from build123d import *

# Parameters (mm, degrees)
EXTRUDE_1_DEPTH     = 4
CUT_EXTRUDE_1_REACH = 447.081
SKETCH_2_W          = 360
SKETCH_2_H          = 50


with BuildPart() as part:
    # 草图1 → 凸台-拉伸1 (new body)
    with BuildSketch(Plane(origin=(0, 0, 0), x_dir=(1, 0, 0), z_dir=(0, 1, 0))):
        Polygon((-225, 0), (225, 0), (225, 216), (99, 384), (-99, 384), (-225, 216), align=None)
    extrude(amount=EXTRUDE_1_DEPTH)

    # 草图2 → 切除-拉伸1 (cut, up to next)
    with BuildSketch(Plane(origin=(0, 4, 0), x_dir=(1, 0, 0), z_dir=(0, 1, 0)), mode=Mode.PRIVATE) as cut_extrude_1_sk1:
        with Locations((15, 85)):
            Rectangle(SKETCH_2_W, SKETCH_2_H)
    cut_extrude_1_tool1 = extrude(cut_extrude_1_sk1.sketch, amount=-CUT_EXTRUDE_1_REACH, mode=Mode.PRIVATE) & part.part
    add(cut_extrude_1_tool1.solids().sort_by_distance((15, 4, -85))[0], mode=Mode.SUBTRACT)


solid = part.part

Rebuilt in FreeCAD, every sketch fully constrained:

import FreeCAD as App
import Part
import Sketcher

V = App.Vector

doc = App.newDocument("Part")
body = doc.addObject("PartDesign::Body", "Body")

# Sketch on XZ plane
sketch1 = body.newObject("Sketcher::SketchObject", "Sketch")
sketch1.AttachmentSupport = (doc.getObject("XZ_Plane"), [""])
sketch1.MapMode = "FlatFace"
sketch1.addGeometry(Part.LineSegment(V(-225, 0, 0), V(225, 0, 0)), False)
sketch1.addGeometry(Part.LineSegment(V(225, 0, 0), V(225, -216, 0)), False)
sketch1.addGeometry(Part.LineSegment(V(225, -216, 0), V(99, -384, 0)), False)
sketch1.addGeometry(Part.LineSegment(V(99, -384, 0), V(-99, -384, 0)), False)
sketch1.addGeometry(Part.LineSegment(V(-99, -384, 0), V(-225, -216, 0)), False)
sketch1.addGeometry(Part.LineSegment(V(-225, -216, 0), V(-225, 0, 0)), False)
sketch1.addConstraint(Sketcher.Constraint("Coincident", 0, 2, 1, 1))
sketch1.addConstraint(Sketcher.Constraint("Coincident", 1, 2, 2, 1))
sketch1.addConstraint(Sketcher.Constraint("Coincident", 2, 2, 3, 1))
sketch1.addConstraint(Sketcher.Constraint("Coincident", 3, 2, 4, 1))
sketch1.addConstraint(Sketcher.Constraint("Coincident", 4, 2, 5, 1))
sketch1.addConstraint(Sketcher.Constraint("Coincident", 5, 2, 0, 1))
sketch1.addConstraint(Sketcher.Constraint("Horizontal", 0))
sketch1.addConstraint(Sketcher.Constraint("Vertical", 1))
sketch1.addConstraint(Sketcher.Constraint("Horizontal", 3))
sketch1.addConstraint(Sketcher.Constraint("Vertical", 5))
sketch1.addConstraint(Sketcher.Constraint("Symmetric", 0, 2, 5, 2, -1, 1))
sketch1.addConstraint(Sketcher.Constraint("Horizontal", 1, 2, 4, 2))
sketch1.addConstraint(Sketcher.Constraint("Equal", 2, 4))
sketch1.addConstraint(Sketcher.Constraint("DistanceX", 0, 1, 0, 2, 450.0))
sketch1.addConstraint(Sketcher.Constraint("DistanceX", 3, 2, 3, 1, 198.0))
sketch1.addConstraint(Sketcher.Constraint("DistanceY", 1, 2, 1, 1, 216.0))
sketch1.addConstraint(Sketcher.Constraint("Distance", 2, 210.0))
pad1 = body.newObject("PartDesign::Pad", "Pad")
pad1.Profile = sketch1
pad1.Length = 4
pad1.Reversed = True

# Sketch on XZ plane
sketch2 = body.newObject("Sketcher::SketchObject", "Sketch001")
sketch2.AttachmentSupport = (doc.getObject("XZ_Plane"), [""])
sketch2.MapMode = "FlatFace"
sketch2.AttachmentOffset = App.Placement(V(0, 0, -4), App.Rotation())
sketch2.addGeometry(Part.LineSegment(V(-165, -110, 0), V(-165, -60, 0)), False)
sketch2.addGeometry(Part.LineSegment(V(-165, -60, 0), V(195, -60, 0)), False)
sketch2.addGeometry(Part.LineSegment(V(195, -60, 0), V(195, -110, 0)), False)
sketch2.addGeometry(Part.LineSegment(V(195, -110, 0), V(-165, -110, 0)), False)
sketch2.addConstraint(Sketcher.Constraint("Coincident", 0, 2, 1, 1))
sketch2.addConstraint(Sketcher.Constraint("Coincident", 1, 2, 2, 1))
sketch2.addConstraint(Sketcher.Constraint("Coincident", 2, 2, 3, 1))
sketch2.addConstraint(Sketcher.Constraint("Coincident", 3, 2, 0, 1))
sketch2.addConstraint(Sketcher.Constraint("Vertical", 0))
sketch2.addConstraint(Sketcher.Constraint("Horizontal", 1))
sketch2.addConstraint(Sketcher.Constraint("Vertical", 2))
sketch2.addConstraint(Sketcher.Constraint("Horizontal", 3))
sketch2.addConstraint(Sketcher.Constraint("DistanceX", 1, 1, 1, 2, 360.0))
sketch2.addConstraint(Sketcher.Constraint("DistanceY", 0, 1, 0, 2, 50.0))
sketch2.addConstraint(Sketcher.Constraint("DistanceX", 0, 2, -1, 1, 165.0))
sketch2.addConstraint(Sketcher.Constraint("DistanceY", 0, 2, -1, 1, 60.0))
pocket1 = body.newObject("PartDesign::Pocket", "Pocket")
pocket1.Profile = sketch2
pocket1.Type = "UpToFirst"
pocket1.Reversed = True

doc.recompute()
